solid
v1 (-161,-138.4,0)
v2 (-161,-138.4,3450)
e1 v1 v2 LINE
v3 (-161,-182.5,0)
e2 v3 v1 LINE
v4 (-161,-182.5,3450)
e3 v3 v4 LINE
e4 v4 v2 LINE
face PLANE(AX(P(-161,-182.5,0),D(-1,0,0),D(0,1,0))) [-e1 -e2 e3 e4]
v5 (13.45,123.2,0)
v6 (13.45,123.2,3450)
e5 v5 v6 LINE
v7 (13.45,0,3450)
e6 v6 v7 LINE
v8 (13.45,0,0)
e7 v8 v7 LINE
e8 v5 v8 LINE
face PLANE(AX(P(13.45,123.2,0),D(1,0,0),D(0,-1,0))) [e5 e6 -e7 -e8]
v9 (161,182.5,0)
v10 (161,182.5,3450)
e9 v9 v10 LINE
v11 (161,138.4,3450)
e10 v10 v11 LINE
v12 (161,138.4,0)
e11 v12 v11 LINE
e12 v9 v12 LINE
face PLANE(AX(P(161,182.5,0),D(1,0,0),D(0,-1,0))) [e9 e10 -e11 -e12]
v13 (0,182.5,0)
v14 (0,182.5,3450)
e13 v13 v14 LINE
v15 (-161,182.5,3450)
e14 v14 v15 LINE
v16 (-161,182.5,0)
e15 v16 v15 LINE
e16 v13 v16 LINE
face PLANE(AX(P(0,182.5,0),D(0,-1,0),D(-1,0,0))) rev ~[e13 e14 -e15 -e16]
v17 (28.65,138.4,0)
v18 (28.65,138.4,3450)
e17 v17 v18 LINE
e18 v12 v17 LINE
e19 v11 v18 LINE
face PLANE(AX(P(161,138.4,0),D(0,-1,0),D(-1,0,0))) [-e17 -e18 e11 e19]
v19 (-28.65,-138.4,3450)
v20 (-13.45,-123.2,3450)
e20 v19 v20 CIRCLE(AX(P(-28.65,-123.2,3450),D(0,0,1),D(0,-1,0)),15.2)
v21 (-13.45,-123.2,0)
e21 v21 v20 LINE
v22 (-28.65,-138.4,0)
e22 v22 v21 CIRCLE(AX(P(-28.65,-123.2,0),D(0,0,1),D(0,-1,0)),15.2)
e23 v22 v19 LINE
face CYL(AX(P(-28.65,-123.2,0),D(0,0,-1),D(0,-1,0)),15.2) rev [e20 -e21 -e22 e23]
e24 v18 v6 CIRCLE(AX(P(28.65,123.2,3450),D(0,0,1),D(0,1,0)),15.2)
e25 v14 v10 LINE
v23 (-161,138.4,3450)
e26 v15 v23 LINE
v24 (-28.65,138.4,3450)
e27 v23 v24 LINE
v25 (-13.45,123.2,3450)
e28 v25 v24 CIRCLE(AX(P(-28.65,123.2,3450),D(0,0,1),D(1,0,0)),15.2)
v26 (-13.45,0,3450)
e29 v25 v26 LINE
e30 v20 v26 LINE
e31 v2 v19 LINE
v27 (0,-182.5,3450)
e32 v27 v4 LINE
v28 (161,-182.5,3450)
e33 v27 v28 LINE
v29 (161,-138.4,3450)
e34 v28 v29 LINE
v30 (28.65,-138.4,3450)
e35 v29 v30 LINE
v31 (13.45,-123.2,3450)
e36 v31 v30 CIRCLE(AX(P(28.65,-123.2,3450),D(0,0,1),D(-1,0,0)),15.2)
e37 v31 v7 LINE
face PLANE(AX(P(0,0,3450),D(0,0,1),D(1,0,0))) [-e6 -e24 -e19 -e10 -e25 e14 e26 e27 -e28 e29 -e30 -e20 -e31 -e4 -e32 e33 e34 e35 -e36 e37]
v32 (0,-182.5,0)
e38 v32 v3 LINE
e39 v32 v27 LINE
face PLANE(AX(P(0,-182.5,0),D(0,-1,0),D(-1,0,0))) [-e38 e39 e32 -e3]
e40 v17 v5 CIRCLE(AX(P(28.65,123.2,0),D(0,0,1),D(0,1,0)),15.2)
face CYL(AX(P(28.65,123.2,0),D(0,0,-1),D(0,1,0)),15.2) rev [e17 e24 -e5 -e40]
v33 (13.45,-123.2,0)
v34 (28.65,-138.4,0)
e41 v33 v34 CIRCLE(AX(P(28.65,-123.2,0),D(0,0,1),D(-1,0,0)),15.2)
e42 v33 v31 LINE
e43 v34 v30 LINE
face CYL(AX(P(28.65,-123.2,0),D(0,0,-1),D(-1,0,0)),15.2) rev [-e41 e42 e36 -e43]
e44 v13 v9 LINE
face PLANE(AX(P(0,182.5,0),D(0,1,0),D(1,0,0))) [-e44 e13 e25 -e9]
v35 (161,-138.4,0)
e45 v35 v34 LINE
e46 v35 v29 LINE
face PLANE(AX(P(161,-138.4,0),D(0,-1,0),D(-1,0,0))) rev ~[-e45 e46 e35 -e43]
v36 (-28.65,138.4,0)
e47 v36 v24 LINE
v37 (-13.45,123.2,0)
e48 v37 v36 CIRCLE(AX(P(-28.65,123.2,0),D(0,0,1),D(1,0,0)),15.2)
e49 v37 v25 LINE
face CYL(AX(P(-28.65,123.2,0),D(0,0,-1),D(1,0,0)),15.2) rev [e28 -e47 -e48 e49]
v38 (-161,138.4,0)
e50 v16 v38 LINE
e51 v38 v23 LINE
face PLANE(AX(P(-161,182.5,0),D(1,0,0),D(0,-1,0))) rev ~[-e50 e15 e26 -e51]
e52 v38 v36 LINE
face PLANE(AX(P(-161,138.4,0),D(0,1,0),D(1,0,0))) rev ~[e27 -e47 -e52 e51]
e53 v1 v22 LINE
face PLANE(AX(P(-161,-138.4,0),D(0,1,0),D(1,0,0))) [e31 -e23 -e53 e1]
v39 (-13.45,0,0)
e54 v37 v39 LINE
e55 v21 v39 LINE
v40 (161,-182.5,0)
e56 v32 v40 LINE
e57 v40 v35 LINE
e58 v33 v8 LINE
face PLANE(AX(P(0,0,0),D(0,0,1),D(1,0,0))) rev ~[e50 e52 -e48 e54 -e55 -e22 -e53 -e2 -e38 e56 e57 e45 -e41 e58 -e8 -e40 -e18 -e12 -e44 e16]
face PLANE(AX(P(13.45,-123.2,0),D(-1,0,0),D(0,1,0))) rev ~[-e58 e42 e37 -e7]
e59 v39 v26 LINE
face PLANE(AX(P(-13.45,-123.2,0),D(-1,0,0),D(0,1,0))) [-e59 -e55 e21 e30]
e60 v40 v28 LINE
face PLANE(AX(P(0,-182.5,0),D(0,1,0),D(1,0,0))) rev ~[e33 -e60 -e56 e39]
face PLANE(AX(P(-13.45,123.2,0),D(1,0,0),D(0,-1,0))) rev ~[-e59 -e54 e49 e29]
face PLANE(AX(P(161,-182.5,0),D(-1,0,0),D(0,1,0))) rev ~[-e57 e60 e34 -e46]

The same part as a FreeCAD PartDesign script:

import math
import FreeCAD as App
import Part
import Sketcher
Q = App.Units.Quantity

doc = App.newDocument("Part")
params = doc.addObject("Spreadsheet::Sheet", "Params")
for row, (alias, value) in enumerate([
    ("sketch1_radius", "15.2 mm"),
    ("sketch1_height", "44.1 mm"),
    ("pad1_length", "3450 mm"),
], start=1):
    params.set(f"A{row}", alias)
    params.set(f"B{row}", "=" + value)
    params.setAlias(f"B{row}", alias)

body = doc.addObject("PartDesign::Body", "Body")

sketch1 = body.newObject("Sketcher::SketchObject", "Sketch")
sketch1.AttachmentSupport = (doc.getObject("XY_Plane"), [""])
sketch1.MapMode = "FlatFace"
sketch1.addGeometry(Part.LineSegment(App.Vector(-161, -138.4, 0), App.Vector(-161, -182.5, 0)), False)
sketch1.addGeometry(Part.LineSegment(App.Vector(-161, -182.5, 0), App.Vector(161, -182.5, 0)), False)
sketch1.addGeometry(Part.LineSegment(App.Vector(161, -182.5, 0), App.Vector(161, -138.4, 0)), False)
sketch1.addGeometry(Part.LineSegment(App.Vector(161, -138.4, 0), App.Vector(28.65, -138.4, 0)), False)
sketch1.addGeometry(Part.ArcOfCircle(Part.Circle(App.Vector(28.65, -123.2, 0), App.Vector(0, 0, 1), 15.2), math.radians(180), math.radians(270)), False)
sketch1.addGeometry(Part.LineSegment(App.Vector(13.45, -123.2, 0), App.Vector(13.45, 123.2, 0)), False)
sketch1.addGeometry(Part.ArcOfCircle(Part.Circle(App.Vector(28.65, 123.2, 0), App.Vector(0, 0, 1), 15.2), math.radians(90), math.radians(180)), False)
sketch1.addGeometry(Part.LineSegment(App.Vector(28.65, 138.4, 0), App.Vector(161, 138.4, 0)), False)
sketch1.addGeometry(Part.LineSegment(App.Vector(161, 138.4, 0), App.Vector(161, 182.5, 0)), False)
sketch1.addGeometry(Part.LineSegment(App.Vector(161, 182.5, 0), App.Vector(-161, 182.5, 0)), False)
sketch1.addGeometry(Part.LineSegment(App.Vector(-161, 182.5, 0), App.Vector(-161, 138.4, 0)), False)
sketch1.addGeometry(Part.LineSegment(App.Vector(-161, 138.4, 0), App.Vector(-28.65, 138.4, 0)), False)
sketch1.addGeometry(Part.ArcOfCircle(Part.Circle(App.Vector(-28.65, 123.2, 0), App.Vector(0, 0, 1), 15.2), math.radians(0), math.radians(90)), False)
sketch1.addGeometry(Part.LineSegment(App.Vector(-13.45, 123.2, 0), App.Vector(-13.45, -123.2, 0)), False)
sketch1.addGeometry(Part.ArcOfCircle(Part.Circle(App.Vector(-28.65, -123.2, 0), App.Vector(0, 0, 1), 15.2), math.radians(-90), math.radians(0)), False)
sketch1.addGeometry(Part.LineSegment(App.Vector(-28.65, -138.4, 0), App.Vector(-161, -138.4, 0)), False)
sketch1.addConstraint(Sketcher.Constraint("Coincident", 0, 2, 1, 1))
sketch1.addConstraint(Sketcher.Constraint("Coincident", 1, 2, 2, 1))
sketch1.addConstraint(Sketcher.Constraint("Coincident", 2, 2, 3, 1))
sketch1.addConstraint(Sketcher.Constraint("Tangent", 3, 2, 4, 2))
sketch1.addConstraint(Sketcher.Constraint("Tangent", 4, 1, 5, 1))
sketch1.addConstraint(Sketcher.Constraint("Tangent", 5, 2, 6, 2))
sketch1.addConstraint(Sketcher.Constraint("Tangent", 6, 1, 7, 1))
sketch1.addConstraint(Sketcher.Constraint("Coincident", 7, 2, 8, 1))
sketch1.addConstraint(Sketcher.Constraint("Coincident", 8, 2, 9, 1))
sketch1.addConstraint(Sketcher.Constraint("Coincident", 9, 2, 10, 1))
sketch1.addConstraint(Sketcher.Constraint("Coincident", 10, 2, 11, 1))
sketch1.addConstraint(Sketcher.Constraint("Tangent", 11, 2, 12, 2))
sketch1.addConstraint(Sketcher.Constraint("Tangent", 12, 1, 13, 1))
sketch1.addConstraint(Sketcher.Constraint("Tangent", 13, 2, 14, 2))
sketch1.addConstraint(Sketcher.Constraint("Tangent", 14, 1, 15, 1))
sketch1.addConstraint(Sketcher.Constraint("Coincident", 15, 2, 0, 1))
sketch1.addConstraint(Sketcher.Constraint("Vertical", 0))
sketch1.addConstraint(Sketcher.Constraint("Horizontal", 1))
sketch1.addConstraint(Sketcher.Constraint("Vertical", 2))
sketch1.addConstraint(Sketcher.Constraint("Horizontal", 3))
sketch1.addConstraint(Sketcher.Constraint("Vertical", 5))
sketch1.addConstraint(Sketcher.Constraint("Horizontal", 7))
sketch1.addConstraint(Sketcher.Constraint("Vertical", 8))
sketch1.addConstraint(Sketcher.Constraint("Horizontal", 9))
sketch1.addConstraint(Sketcher.Constraint("Vertical", 10))
sketch1.addConstraint(Sketcher.Constraint("Horizontal", 11))
sketch1.addConstraint(Sketcher.Constraint("Vertical", 13))
sketch1.addConstraint(Sketcher.Constraint("Horizontal", 15))
sketch1.addConstraint(Sketcher.Constraint("Equal", 4, 6))
sketch1.addConstraint(Sketcher.Constraint("Equal", 6, 12))
sketch1.addConstraint(Sketcher.Constraint("Equal", 12, 14))
sketch1.addConstraint(Sketcher.Constraint("Symmetric", 4, 3, 12, 3, -1, 1))
sketch1.addConstraint(Sketcher.Constraint("Symmetric", 0, 2, 8, 2, -1, 1))
sketch1.addConstraint(Sketcher.Constraint("Symmetric", 7, 2, 10, 2, -2))
sketch1.addConstraint(Sketcher.Constraint("Symmetric", 2, 2, 15, 2, -2))
sketch1.addConstraint(Sketcher.Constraint("Radius", 4, Q("15.2 mm")))
sketch1.addConstraint(Sketcher.Constraint("DistanceY", 0, 2, 0, 1, Q("44.1 mm")))
sketch1.addConstraint(Sketcher.Constraint("DistanceX", 0, 2, -1, 1, Q("161 mm")))
sketch1.addConstraint(Sketcher.Constraint("DistanceY", 0, 2, -1, 1, Q("182.5 mm")))
sketch1.addConstraint(Sketcher.Constraint("DistanceX", -1, 1, 4, 1, Q("13.45 mm")))
sketch1.setExpression("Constraints[35]", "Params.sketch1_radius")
sketch1.setExpression("Constraints[36]", "Params.sketch1_height")
pad1 = body.newObject("PartDesign::Pad", "Pad")
pad1.Profile = sketch1
pad1.setExpression("Length", "Params.pad1_length")

doc.recompute()
